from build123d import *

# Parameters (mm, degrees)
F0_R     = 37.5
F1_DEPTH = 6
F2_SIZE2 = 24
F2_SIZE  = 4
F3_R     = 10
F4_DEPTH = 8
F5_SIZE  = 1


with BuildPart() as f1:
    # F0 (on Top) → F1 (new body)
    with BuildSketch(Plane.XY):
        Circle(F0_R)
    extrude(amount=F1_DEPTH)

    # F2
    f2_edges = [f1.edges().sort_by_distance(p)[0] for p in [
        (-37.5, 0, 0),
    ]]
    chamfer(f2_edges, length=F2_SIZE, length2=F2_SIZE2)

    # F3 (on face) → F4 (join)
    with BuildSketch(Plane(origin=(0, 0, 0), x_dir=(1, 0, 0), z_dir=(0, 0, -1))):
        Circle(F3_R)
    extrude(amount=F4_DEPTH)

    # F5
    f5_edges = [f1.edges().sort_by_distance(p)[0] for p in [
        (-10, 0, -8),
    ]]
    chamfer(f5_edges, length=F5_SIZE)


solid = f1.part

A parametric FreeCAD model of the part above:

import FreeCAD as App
import Part
import Sketcher
from FreeCAD import Vector
Q = App.Units.Quantity


def edges_at(feature, points):
    """Names of the edges that pass closest to the given points."""
    edges = feature.Shape.Edges
    near = lambda p: min(range(len(edges)), key=lambda i: edges[i].distToShape(Part.Vertex(*p))[0])
    return sorted({f"Edge{near(p) + 1}" for p in points})

doc = App.newDocument("Part")
body = doc.addObject("PartDesign::Body", "Body")

sketch1 = doc.addObject("Sketcher::SketchObject", "Sketch")
body.addObject(sketch1)
sketch1.AttachmentSupport = (doc.XY_Plane, [""])
sketch1.MapMode = "FlatFace"
sketch1.addGeometry(Part.Circle(Vector(0, 0, 0), Vector(0, 0, 1), 38), False)
sketch1.addConstraint([
    Sketcher.Constraint("Coincident", 0, 3, -1, 1),
    Sketcher.Constraint("Diameter", 0, Q("75 mm")),
])
pad1 = doc.addObject("PartDesign::Pad", "Pad")
body.addObject(pad1)
pad1.Profile = sketch1
pad1.Length = 6
doc.recompute()

chamfer = doc.addObject("PartDesign::Chamfer", "Chamfer")
body.addObject(chamfer)
chamfer.Base = (pad1, edges_at(pad1, [(-37.5, 0, 0)]))
chamfer.ChamferType = "Two distances"
chamfer.Size = 4
chamfer.Size2 = 24

sketch2 = doc.addObject("Sketcher::SketchObject", "Sketch001")
body.addObject(sketch2)
sketch2.AttachmentSupport = (doc.XY_Plane, [""])
sketch2.MapMode = "FlatFace"
sketch2.addGeometry(Part.Circle(Vector(0, 0, 0), Vector(0, 0, 1), 10), False)
sketch2.addConstraint([
    Sketcher.Constraint("Coincident", 0, 3, -1, 1),
    Sketcher.Constraint("Diameter", 0, Q("20 mm")),
])
pad2 = doc.addObject("PartDesign::Pad", "Pad001")
body.addObject(pad2)
pad2.Profile = sketch2
pad2.Length = 8
pad2.Reversed = True
doc.recompute()

chamfer2 = doc.addObject("PartDesign::Chamfer", "Chamfer001")
body.addObject(chamfer2)
chamfer2.Base = (pad2, edges_at(pad2, [(-10, 0, -8)]))
chamfer2.Size = 1

doc.recompute()
